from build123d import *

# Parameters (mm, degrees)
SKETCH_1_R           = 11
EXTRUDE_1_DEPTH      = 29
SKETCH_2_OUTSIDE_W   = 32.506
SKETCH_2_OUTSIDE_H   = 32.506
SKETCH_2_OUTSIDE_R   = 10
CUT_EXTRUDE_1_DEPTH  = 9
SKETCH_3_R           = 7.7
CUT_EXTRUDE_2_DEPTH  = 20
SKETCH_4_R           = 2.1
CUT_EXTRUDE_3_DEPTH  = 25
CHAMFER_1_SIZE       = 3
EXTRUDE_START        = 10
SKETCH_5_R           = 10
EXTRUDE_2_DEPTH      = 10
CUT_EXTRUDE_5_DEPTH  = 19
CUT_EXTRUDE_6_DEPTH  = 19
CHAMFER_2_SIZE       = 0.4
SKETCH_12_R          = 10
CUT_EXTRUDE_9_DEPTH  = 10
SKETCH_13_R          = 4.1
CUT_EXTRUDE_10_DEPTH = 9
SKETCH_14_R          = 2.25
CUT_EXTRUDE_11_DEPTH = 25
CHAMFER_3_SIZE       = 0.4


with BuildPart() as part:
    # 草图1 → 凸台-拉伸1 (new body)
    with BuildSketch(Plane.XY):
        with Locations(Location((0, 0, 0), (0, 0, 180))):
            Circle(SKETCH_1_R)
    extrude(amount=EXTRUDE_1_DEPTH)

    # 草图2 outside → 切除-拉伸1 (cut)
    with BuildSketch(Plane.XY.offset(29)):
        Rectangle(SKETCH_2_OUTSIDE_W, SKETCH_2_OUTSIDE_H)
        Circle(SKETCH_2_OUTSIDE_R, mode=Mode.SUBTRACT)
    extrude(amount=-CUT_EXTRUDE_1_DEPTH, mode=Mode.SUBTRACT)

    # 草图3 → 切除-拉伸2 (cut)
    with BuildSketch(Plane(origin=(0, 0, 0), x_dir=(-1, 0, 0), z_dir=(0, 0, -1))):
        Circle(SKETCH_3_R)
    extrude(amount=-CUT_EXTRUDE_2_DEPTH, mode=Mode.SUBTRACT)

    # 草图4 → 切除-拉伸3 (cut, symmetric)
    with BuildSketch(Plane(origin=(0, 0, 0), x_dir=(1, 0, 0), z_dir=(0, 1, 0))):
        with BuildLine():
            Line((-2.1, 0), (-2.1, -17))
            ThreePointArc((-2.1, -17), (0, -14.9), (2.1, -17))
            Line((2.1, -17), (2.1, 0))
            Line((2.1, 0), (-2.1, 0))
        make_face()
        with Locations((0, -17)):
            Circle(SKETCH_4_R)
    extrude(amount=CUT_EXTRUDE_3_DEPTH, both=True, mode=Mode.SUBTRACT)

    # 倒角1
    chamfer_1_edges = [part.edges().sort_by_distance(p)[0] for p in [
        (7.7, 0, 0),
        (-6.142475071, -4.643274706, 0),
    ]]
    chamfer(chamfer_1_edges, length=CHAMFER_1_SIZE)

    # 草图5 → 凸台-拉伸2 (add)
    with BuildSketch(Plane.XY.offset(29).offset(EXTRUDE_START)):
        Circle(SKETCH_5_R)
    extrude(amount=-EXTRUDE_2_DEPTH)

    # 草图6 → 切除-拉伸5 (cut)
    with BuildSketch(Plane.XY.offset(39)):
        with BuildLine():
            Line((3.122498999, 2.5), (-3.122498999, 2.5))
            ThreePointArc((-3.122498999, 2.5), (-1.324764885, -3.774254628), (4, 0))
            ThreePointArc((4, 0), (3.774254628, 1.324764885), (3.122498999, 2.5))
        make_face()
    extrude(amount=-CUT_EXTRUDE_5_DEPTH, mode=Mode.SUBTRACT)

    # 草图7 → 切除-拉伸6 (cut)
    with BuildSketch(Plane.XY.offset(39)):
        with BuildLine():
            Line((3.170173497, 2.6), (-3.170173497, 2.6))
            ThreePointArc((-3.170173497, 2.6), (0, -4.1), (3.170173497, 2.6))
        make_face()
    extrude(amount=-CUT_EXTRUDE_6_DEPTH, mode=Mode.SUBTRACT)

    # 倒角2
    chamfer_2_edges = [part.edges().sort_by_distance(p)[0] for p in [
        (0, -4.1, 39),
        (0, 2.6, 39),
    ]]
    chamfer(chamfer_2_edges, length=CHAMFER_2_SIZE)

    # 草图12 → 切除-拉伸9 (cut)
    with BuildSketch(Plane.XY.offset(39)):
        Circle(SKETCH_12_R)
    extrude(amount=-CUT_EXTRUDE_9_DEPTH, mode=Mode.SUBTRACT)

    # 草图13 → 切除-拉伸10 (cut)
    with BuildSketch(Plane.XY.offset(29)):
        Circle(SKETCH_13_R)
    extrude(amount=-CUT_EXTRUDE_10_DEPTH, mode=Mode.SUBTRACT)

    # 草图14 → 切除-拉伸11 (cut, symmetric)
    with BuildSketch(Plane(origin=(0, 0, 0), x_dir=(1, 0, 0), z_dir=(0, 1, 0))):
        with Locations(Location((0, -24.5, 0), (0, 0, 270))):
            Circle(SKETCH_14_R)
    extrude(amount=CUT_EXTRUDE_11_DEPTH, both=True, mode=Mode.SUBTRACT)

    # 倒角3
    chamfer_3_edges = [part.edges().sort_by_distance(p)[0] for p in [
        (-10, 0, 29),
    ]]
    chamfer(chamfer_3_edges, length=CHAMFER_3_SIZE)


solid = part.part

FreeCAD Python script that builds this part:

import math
import FreeCAD as App
import Part
import Sketcher
from FreeCAD import Vector


def edges_at(feature, points):
    """Names of the edges that pass closest to the given points."""
    edges = feature.Shape.Edges
    near = lambda p: min(range(len(edges)), key=lambda i: edges[i].distToShape(Part.Vertex(*p))[0])
    return sorted({f"Edge{near(p) + 1}" for p in points})

doc = App.newDocument("Part")
body = doc.addObject("PartDesign::Body", "Body")

# Sketch on XY plane
sketch1 = doc.addObject("Sketcher::SketchObject", "Sketch")
body.addObject(sketch1)
sketch1.AttachmentSupport = (doc.XY_Plane, [""])
sketch1.MapMode = "FlatFace"
sketch1.addGeometry(Part.Circle(Vector(0, 0, 0), Vector(0, 0, 1), 11), False)
sketch1.addConstraint([
    Sketcher.Constraint("Coincident", 0, 3, -1, 1),
    Sketcher.Constraint("Diameter", 0, 22.0),
])
pad1 = doc.addObject("PartDesign::Pad", "Pad")
body.addObject(pad1)
pad1.Profile = sketch1
pad1.Length = 29

# Sketch on XY plane
sketch2 = doc.addObject("Sketcher::SketchObject", "Sketch001")
body.addObject(sketch2)
sketch2.AttachmentSupport = (doc.XY_Plane, [""])
sketch2.MapMode = "FlatFace"
sketch2.AttachmentOffset = App.Placement(Vector(0, 0, 29), App.Rotation())
sketch2.addGeometry([
    Part.LineSegment(Vector(-16.253, 16.253, 0), Vector(-16.253, -16.253, 0)),  # 0
    Part.LineSegment(Vector(-16.253, -16.253, 0), Vector(16.253, -16.253, 0)),  # 1
    Part.LineSegment(Vector(16.253, -16.253, 0), Vector(16.253, 16.253, 0)),  # 2
    Part.LineSegment(Vector(16.253, 16.253, 0), Vector(-16.253, 16.253, 0)),  # 3
    Part.Circle(Vector(0, 0, 0), Vector(0, 0, 1), 10),  # 4
], False)
sketch2.addConstraint([
    Sketcher.Constraint("Coincident", 0, 2, 1, 1),
    Sketcher.Constraint("Coincident", 1, 2, 2, 1),
    Sketcher.Constraint("Coincident", 2, 2, 3, 1),
    Sketcher.Constraint("Coincident", 3, 2, 0, 1),
    Sketcher.Constraint("Vertical", 0),
    Sketcher.Constraint("Horizontal", 1),
    Sketcher.Constraint("Vertical", 2),
    Sketcher.Constraint("Horizontal", 3),
    Sketcher.Constraint("Coincident", 4, 3, -1, 1),
    Sketcher.Constraint("Symmetric", 0, 2, 2, 2, -1, 1),
    Sketcher.Constraint("Equal", 3, 0),
    Sketcher.Constraint("Diameter", 4, 20.0),
    Sketcher.Constraint("DistanceX", 1, 1, 1, 2, 32.506),
])
pocket1 = doc.addObject("PartDesign::Pocket", "Pocket")
body.addObject(pocket1)
pocket1.Profile = sketch2
pocket1.Length = 9

# Sketch on XY plane
sketch3 = doc.addObject("Sketcher::SketchObject", "Sketch002")
body.addObject(sketch3)
sketch3.AttachmentSupport = (doc.XY_Plane, [""])
sketch3.MapMode = "FlatFace"
sketch3.addGeometry(Part.Circle(Vector(0, 0, 0), Vector(0, 0, 1), 7.7), False)
sketch3.addConstraint([
    Sketcher.Constraint("Coincident", 0, 3, -1, 1),
    Sketcher.Constraint("Diameter", 0, 15.4),
])
pocket2 = doc.addObject("PartDesign::Pocket", "Pocket001")
body.addObject(pocket2)
pocket2.Profile = sketch3
pocket2.Length = 20
pocket2.Reversed = True

# Sketch on XZ plane
sketch4 = doc.addObject("Sketcher::SketchObject", "Sketch003")
body.addObject(sketch4)
sketch4.AttachmentSupport = (doc.XZ_Plane, [""])
sketch4.MapMode = "FlatFace"
sketch4.addGeometry([
    Part.LineSegment(Vector(-2.1, 0, 0), Vector(-2.1, 17, 0)),
    Part.ArcOfCircle(Part.Circle(Vector(0, 17, 0), Vector(0, 0, 1), 2.1), math.radians(0), math.radians(180)),
    Part.LineSegment(Vector(2.1, 17, 0), Vector(2.1, 0, 0)),
    Part.LineSegment(Vector(2.1, 0, 0), Vector(-2.1, 0, 0)),
], False)
sketch4.addConstraint([
    Sketcher.Constraint("Tangent", 0, 2, 1, 2),
    Sketcher.Constraint("Tangent", 1, 1, 2, 1),
    Sketcher.Constraint("Coincident", 2, 2, 3, 1),
    Sketcher.Constraint("Coincident", 3, 2, 0, 1),
    Sketcher.Constraint("Vertical", 0),
    Sketcher.Constraint("Vertical", 2),
    Sketcher.Constraint("Horizontal", 3),
    Sketcher.Constraint("Symmetric", 2, 2, 3, 2, -1, 1),
    Sketcher.Constraint("Radius", 1, 2.1),
    Sketcher.Constraint("DistanceY", 0, 1, 0, 2, 17.0),
])
pocket3 = doc.addObject("PartDesign::Pocket", "Pocket002")
body.addObject(pocket3)
pocket3.Profile = sketch4
pocket3.Length = 50
pocket3.Midplane = True
doc.recompute()

chamfer = doc.addObject("PartDesign::Chamfer", "Chamfer")
body.addObject(chamfer)
chamfer.Base = (pocket3, edges_at(pocket3, [(7.7, 0, 0), (-6.142, -4.643, 0)]))
chamfer.Size = 3

# Sketch on XY plane
sketch5 = doc.addObject("Sketcher::SketchObject", "Sketch004")
body.addObject(sketch5)
sketch5.AttachmentSupport = (doc.XY_Plane, [""])
sketch5.MapMode = "FlatFace"
sketch5.AttachmentOffset = App.Placement(Vector(0, 0, 39), App.Rotation())
sketch5.addGeometry(Part.Circle(Vector(0, 0, 0), Vector(0, 0, 1), 10), False)
sketch5.addConstraint([
    Sketcher.Constraint("Coincident", 0, 3, -1, 1),
    Sketcher.Constraint("Diameter", 0, 20.0),
])
pad2 = doc.addObject("PartDesign::Pad", "Pad001")
body.addObject(pad2)
pad2.Profile = sketch5
pad2.Length = 10
pad2.Reversed = True

# Sketch on XY plane
sketch6 = doc.addObject("Sketcher::SketchObject", "Sketch005")
body.addObject(sketch6)
sketch6.AttachmentSupport = (doc.XY_Plane, [""])
sketch6.MapMode = "FlatFace"
sketch6.AttachmentOffset = App.Placement(Vector(0, 0, 39), App.Rotation())
sketch6.addGeometry([
    Part.LineSegment(Vector(3.122499, 2.5, 0), Vector(-3.122499, 2.5, 0)),
    Part.ArcOfCircle(Part.Circle(Vector(0, 0, 0), Vector(0, 0, 1), 4), math.radians(141.317813), math.radians(360)),
    Part.ArcOfCircle(Part.Circle(Vector(0, 0, 0), Vector(0, 0, 1), 4), math.radians(0), math.radians(38.682187)),
], False)
sketch6.addConstraint([
    Sketcher.Constraint("Coincident", 0, 2, 1, 1),
    Sketcher.Constraint("Tangent", 1, 2, 2, 1),
    Sketcher.Constraint("Coincident", 2, 2, 0, 1),
    Sketcher.Constraint("Horizontal", 0),
    Sketcher.Constraint("Coincident", 1, 3, -1, 1),
    Sketcher.Constraint("Equal", 1, 2),
    Sketcher.Constraint("PointOnObject", 1, 2, -1),
    Sketcher.Constraint("Radius", 1, 4.0),
    Sketcher.Constraint("DistanceY", -1, 1, 0, 2, 2.5),
])
pocket4 = doc.addObject("PartDesign::Pocket", "Pocket003")
body.addObject(pocket4)
pocket4.Profile = sketch6
pocket4.Length = 19

# Sketch on XY plane
sketch7 = doc.addObject("Sketcher::SketchObject", "Sketch006")
body.addObject(sketch7)
sketch7.AttachmentSupport = (doc.XY_Plane, [""])
sketch7.MapMode = "FlatFace"
sketch7.AttachmentOffset = App.Placement(Vector(0, 0, 39), App.Rotation())
sketch7.addGeometry([
    Part.LineSegment(Vector(3.170173, 2.6, 0), Vector(-3.170173, 2.6, 0)),
    Part.ArcOfCircle(Part.Circle(Vector(0, 0, 0), Vector(0, 0, 1), 4.1), math.radians(140.643301), math.radians(399.356699)),
], False)
sketch7.addConstraint([
    Sketcher.Constraint("Coincident", 0, 1, 1, 2),
    Sketcher.Constraint("Coincident", 1, 1, 0, 2),
    Sketcher.Constraint("Horizontal", 0),
    Sketcher.Constraint("Coincident", 1, 3, -1, 1),
    Sketcher.Constraint("Radius", 1, 4.1),
    Sketcher.Constraint("DistanceY", -1, 1, 0, 1, 2.6),
])
pocket5 = doc.addObject("PartDesign::Pocket", "Pocket004")
body.addObject(pocket5)
pocket5.Profile = sketch7
pocket5.Length = 19
doc.recompute()

chamfer2 = doc.addObject("PartDesign::Chamfer", "Chamfer001")
body.addObject(chamfer2)
chamfer2.Base = (pocket5, edges_at(pocket5, [(0, -4.1, 39), (0, 2.6, 39)]))
chamfer2.Size = 0.4

# Sketch on XY plane
sketch8 = doc.addObject("Sketcher::SketchObject", "Sketch007")
body.addObject(sketch8)
sketch8.AttachmentSupport = (doc.XY_Plane, [""])
sketch8.MapMode = "FlatFace"
sketch8.AttachmentOffset = App.Placement(Vector(0, 0, 39), App.Rotation())
sketch8.addGeometry(Part.Circle(Vector(0, 0, 0), Vector(0, 0, 1), 10), False)
sketch8.addConstraint([
    Sketcher.Constraint("Coincident", 0, 3, -1, 1),
    Sketcher.Constraint("Diameter", 0, 20.0),
])
pocket6 = doc.addObject("PartDesign::Pocket", "Pocket005")
body.addObject(pocket6)
pocket6.Profile = sketch8
pocket6.Length = 10

# Sketch on XY plane
sketch9 = doc.addObject("Sketcher::SketchObject", "Sketch008")
body.addObject(sketch9)
sketch9.AttachmentSupport = (doc.XY_Plane, [""])
sketch9.MapMode = "FlatFace"
sketch9.AttachmentOffset = App.Placement(Vector(0, 0, 29), App.Rotation())
sketch9.addGeometry(Part.Circle(Vector(0, 0, 0), Vector(0, 0, 1), 4.1), False)
sketch9.addConstraint([
    Sketcher.Constraint("Coincident", 0, 3, -1, 1),
    Sketcher.Constraint("Diameter", 0, 8.2),
])
pocket7 = doc.addObject("PartDesign::Pocket", "Pocket006")
body.addObject(pocket7)
pocket7.Profile = sketch9
pocket7.Length = 9

# Sketch on XZ plane
sketch10 = doc.addObject("Sketcher::SketchObject", "Sketch009")
body.addObject(sketch10)
sketch10.AttachmentSupport = (doc.XZ_Plane, [""])
sketch10.MapMode = "FlatFace"
sketch10.addGeometry(Part.Circle(Vector(0, 24.5, 0), Vector(0, 0, 1), 2.25), False)
sketch10.addConstraint([
    Sketcher.Constraint("PointOnObject", 0, 3, -2),
    Sketcher.Constraint("Diameter", 0, 4.5),
    Sketcher.Constraint("DistanceY", -1, 1, 0, 3, 24.5),
])
pocket8 = doc.addObject("PartDesign::Pocket", "Pocket007")
body.addObject(pocket8)
pocket8.Profile = sketch10
pocket8.Length = 50
pocket8.Midplane = True
doc.recompute()

chamfer3 = doc.addObject("PartDesign::Chamfer", "Chamfer002")
body.addObject(chamfer3)
chamfer3.Base = (pocket8, edges_at(pocket8, [(-10, 0, 29)]))
chamfer3.Size = 0.4

doc.recompute()
